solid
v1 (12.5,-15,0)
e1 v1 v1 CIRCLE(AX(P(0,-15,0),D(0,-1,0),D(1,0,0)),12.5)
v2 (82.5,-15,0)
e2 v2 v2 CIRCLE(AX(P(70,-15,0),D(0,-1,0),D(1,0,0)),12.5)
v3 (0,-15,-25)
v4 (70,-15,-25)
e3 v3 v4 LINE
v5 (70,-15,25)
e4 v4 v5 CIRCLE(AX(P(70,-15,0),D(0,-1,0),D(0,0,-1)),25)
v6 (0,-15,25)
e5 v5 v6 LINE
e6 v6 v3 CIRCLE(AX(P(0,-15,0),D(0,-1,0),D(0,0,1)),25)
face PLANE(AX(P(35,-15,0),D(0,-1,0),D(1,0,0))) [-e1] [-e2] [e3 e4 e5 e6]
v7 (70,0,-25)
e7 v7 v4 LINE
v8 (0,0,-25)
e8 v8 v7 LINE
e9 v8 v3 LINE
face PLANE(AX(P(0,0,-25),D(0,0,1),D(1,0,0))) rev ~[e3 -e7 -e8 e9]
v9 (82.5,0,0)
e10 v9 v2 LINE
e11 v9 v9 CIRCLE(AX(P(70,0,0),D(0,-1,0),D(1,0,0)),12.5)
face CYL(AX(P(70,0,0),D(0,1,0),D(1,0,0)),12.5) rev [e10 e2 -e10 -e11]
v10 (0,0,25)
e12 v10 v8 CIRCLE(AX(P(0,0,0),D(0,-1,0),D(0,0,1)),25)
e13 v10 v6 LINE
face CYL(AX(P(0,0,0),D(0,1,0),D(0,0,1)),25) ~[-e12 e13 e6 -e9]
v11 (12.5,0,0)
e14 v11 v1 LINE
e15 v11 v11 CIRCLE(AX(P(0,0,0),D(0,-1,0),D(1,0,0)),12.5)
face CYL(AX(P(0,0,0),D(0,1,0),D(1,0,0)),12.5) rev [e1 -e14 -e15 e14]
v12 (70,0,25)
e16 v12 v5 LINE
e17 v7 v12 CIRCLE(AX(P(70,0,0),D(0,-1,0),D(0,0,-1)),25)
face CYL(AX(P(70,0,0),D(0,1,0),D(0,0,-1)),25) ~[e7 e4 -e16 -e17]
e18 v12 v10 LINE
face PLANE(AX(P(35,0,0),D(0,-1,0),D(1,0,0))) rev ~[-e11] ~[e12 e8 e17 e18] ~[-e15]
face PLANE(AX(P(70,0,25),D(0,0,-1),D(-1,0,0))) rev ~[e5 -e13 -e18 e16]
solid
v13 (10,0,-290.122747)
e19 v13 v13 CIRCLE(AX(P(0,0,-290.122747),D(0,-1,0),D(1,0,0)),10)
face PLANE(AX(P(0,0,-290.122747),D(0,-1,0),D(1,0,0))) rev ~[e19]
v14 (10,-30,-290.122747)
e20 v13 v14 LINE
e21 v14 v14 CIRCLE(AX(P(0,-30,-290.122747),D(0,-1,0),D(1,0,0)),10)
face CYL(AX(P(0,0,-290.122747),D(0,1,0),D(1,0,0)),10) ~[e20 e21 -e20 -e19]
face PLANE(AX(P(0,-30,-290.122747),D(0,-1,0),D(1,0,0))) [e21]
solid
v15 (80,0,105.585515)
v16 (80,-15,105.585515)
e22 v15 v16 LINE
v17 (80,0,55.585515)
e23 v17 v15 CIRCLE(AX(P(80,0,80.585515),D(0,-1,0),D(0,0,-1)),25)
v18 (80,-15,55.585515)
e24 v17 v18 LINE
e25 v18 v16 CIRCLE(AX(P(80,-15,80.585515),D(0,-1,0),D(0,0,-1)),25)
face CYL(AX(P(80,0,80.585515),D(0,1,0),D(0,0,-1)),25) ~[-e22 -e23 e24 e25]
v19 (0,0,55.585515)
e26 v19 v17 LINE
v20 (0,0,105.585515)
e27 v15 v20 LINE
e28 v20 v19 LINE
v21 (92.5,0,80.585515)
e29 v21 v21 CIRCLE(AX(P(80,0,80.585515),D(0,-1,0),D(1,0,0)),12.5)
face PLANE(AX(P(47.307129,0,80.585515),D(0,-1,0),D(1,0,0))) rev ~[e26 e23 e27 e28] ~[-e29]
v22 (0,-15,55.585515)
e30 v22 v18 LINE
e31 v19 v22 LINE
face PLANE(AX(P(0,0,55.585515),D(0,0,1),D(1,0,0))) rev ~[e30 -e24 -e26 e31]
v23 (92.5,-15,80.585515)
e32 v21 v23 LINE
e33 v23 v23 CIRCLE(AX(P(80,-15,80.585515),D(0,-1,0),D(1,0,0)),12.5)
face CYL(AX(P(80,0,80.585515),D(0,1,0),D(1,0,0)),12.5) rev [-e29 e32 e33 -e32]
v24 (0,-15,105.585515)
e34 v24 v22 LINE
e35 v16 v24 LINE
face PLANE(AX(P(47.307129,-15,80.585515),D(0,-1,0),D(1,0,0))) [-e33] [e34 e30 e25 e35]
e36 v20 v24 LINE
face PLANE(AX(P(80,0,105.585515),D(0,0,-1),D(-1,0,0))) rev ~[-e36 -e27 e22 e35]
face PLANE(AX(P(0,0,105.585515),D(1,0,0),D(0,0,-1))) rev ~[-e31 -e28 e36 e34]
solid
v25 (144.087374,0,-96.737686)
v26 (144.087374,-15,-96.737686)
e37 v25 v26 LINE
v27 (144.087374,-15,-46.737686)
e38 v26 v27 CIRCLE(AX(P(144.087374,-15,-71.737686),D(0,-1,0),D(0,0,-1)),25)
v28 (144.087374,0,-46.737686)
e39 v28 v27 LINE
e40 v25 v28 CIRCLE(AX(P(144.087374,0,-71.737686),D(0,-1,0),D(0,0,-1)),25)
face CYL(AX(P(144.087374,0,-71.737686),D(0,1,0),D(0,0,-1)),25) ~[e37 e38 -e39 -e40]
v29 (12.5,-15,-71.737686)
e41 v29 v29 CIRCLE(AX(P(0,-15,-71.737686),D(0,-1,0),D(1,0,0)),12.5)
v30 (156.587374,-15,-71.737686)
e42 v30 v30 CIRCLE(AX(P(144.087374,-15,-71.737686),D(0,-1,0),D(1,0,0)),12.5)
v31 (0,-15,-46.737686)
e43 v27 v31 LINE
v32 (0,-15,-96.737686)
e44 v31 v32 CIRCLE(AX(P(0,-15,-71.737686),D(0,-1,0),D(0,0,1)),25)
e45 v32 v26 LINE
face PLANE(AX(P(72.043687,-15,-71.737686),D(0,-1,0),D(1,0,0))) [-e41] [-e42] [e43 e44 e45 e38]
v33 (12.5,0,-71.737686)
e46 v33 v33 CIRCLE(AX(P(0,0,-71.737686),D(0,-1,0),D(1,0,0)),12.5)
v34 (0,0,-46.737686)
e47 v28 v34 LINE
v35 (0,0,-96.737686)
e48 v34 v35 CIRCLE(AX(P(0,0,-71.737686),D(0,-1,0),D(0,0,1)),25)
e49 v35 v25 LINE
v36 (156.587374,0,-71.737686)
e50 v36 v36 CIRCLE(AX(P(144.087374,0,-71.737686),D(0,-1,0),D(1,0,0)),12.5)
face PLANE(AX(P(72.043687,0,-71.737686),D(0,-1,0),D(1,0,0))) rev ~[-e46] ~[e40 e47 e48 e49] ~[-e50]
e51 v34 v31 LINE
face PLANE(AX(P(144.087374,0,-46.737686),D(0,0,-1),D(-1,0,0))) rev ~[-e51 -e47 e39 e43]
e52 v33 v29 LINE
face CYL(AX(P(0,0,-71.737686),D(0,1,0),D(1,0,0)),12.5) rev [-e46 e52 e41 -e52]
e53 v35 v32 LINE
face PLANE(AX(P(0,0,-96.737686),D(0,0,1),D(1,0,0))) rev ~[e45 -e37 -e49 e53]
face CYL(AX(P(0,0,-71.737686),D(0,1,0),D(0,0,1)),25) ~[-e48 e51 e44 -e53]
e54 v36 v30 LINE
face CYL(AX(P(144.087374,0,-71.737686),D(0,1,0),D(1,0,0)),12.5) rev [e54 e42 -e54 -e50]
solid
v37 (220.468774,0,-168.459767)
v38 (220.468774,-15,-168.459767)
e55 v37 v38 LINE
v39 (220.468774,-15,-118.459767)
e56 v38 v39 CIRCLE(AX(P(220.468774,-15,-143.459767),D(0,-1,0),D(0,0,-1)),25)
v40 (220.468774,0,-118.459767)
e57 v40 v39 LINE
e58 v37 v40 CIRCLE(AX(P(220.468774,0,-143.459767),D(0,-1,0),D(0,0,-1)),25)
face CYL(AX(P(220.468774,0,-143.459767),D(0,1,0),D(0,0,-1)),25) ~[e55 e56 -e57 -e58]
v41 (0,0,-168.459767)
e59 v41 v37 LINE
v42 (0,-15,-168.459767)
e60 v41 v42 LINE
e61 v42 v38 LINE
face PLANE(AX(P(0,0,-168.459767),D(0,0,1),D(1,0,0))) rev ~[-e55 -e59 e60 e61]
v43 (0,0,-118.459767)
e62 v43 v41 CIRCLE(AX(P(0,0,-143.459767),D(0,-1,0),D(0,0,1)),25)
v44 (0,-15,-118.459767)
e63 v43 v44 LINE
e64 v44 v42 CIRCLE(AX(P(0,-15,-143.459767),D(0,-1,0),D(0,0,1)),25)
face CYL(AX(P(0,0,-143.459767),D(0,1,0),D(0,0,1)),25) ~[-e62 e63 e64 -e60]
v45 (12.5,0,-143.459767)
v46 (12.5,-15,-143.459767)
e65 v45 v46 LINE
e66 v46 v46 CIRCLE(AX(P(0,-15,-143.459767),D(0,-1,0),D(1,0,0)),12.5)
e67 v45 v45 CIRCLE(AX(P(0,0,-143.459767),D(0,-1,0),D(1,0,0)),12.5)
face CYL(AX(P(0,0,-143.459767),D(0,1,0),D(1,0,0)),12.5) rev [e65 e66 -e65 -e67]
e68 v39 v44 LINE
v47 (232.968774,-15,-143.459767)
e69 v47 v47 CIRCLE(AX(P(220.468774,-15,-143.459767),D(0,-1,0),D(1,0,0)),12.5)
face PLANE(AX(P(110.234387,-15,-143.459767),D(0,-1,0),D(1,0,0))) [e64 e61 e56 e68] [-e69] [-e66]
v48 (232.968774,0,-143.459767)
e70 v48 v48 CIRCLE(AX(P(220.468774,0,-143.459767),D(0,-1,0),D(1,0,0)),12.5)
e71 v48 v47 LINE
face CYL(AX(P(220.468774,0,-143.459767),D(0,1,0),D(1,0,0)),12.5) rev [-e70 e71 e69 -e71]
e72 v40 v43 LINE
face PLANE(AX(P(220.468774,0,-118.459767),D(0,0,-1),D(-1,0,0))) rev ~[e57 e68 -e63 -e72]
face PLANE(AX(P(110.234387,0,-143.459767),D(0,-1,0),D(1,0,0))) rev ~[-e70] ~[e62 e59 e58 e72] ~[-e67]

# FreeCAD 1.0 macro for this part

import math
import FreeCAD as App
import Part
import Sketcher

V = App.Vector

doc = App.newDocument("Part")
body = doc.addObject("PartDesign::Body", "Body")

# Sketch on XZ plane
sketch1 = body.newObject("Sketcher::SketchObject", "Sketch")
sketch1.AttachmentSupport = (doc.getObject("XZ_Plane"), [""])
sketch1.MapMode = "FlatFace"
sketch1.addGeometry([
    Part.LineSegment(V(70, 25, 0), V(0, 25, 0)),  # 0
    Part.ArcOfCircle(Part.Circle(V(0, 0, 0), V(0, 0, 1), 25), math.radians(90), math.radians(270)),  # 1
    Part.LineSegment(V(0, -25, 0), V(70, -25, 0)),  # 2
    Part.ArcOfCircle(Part.Circle(V(70, 0, 0), V(0, 0, 1), 25), math.radians(-90), math.radians(90)),  # 3
    Part.Circle(V(0, 0, 0), V(0, 0, 1), 12),  # 4
    Part.Circle(V(70, 0, 0), V(0, 0, 1), 12),  # 5
], False)
sketch1.addConstraint([
    Sketcher.Constraint("Tangent", 0, 2, 1, 1),
    Sketcher.Constraint("Tangent", 1, 2, 2, 1),
    Sketcher.Constraint("Tangent", 2, 2, 3, 1),
    Sketcher.Constraint("Tangent", 3, 2, 0, 1),
    Sketcher.Constraint("Horizontal", 0),
    Sketcher.Constraint("Horizontal", 2),
    Sketcher.Constraint("Coincident", 1, 3, -1, 1),
    Sketcher.Constraint("Coincident", 4, 3, -1, 1),
    Sketcher.Constraint("Coincident", 5, 3, 3, 3),
    Sketcher.Constraint("Equal", 4, 5),
    Sketcher.Constraint("Diameter", 4, 25.0),
    Sketcher.Constraint("Radius", 1, 25.0),
    Sketcher.Constraint("DistanceX", 0, 2, 0, 1, 70.0),
])
pad1 = body.newObject("PartDesign::Pad", "Pad")
pad1.Profile = sketch1
pad1.Length = 15
body2 = doc.addObject("PartDesign::Body", "Body001")

# Sketch on XZ plane
sketch2 = body2.newObject("Sketcher::SketchObject", "Sketch001")
sketch2.AttachmentSupport = (doc.getObject("XZ_Plane001"), [""])
sketch2.MapMode = "FlatFace"
sketch2.addGeometry([
    Part.LineSegment(V(80, 106, 0), V(0, 106, 0)),  # 0
    Part.LineSegment(V(0, 106, 0), V(0, 56, 0)),  # 1
    Part.LineSegment(V(0, 56, 0), V(80, 56, 0)),  # 2
    Part.ArcOfCircle(Part.Circle(V(80, 81, 0), V(0, 0, 1), 25), math.radians(-90), math.radians(90)),  # 3
    Part.Circle(V(80, 81, 0), V(0, 0, 1), 12),  # 4
], False)
sketch2.addConstraint([
    Sketcher.Constraint("Coincident", 0, 2, 1, 1),
    Sketcher.Constraint("Coincident", 1, 2, 2, 1),
    Sketcher.Constraint("Tangent", 2, 2, 3, 1),
    Sketcher.Constraint("Tangent", 3, 2, 0, 1),
    Sketcher.Constraint("Horizontal", 0),
    Sketcher.Constraint("Vertical", 1),
    Sketcher.Constraint("Horizontal", 2),
    Sketcher.Constraint("Coincident", 4, 3, 3, 3),
    Sketcher.Constraint("PointOnObject", 0, 2, -2),
    Sketcher.Constraint("Diameter", 4, 25.0),
    Sketcher.Constraint("Radius", 3, 25.0),
    Sketcher.Constraint("DistanceX", 0, 2, 0, 1, 80.0),
    Sketcher.Constraint("DistanceY", -1, 1, 3, 3, 80.585515),
])
pad2 = body2.newObject("PartDesign::Pad", "Pad001")
pad2.Profile = sketch2
pad2.Length = 15
body3 = doc.addObject("PartDesign::Body", "Body002")

# Sketch on XZ plane
sketch3 = body3.newObject("Sketcher::SketchObject", "Sketch002")
sketch3.AttachmentSupport = (doc.getObject("XZ_Plane002"), [""])
sketch3.MapMode = "FlatFace"
sketch3.addGeometry([
    Part.ArcOfCircle(Part.Circle(V(0, -72, 0), V(0, 0, 1), 25), math.radians(90), math.radians(270)),  # 0
    Part.LineSegment(V(0, -97, 0), V(144, -97, 0)),  # 1
    Part.ArcOfCircle(Part.Circle(V(144, -72, 0), V(0, 0, 1), 25), math.radians(-90), math.radians(90)),  # 2
    Part.LineSegment(V(144, -47, 0), V(0, -47, 0)),  # 3
    Part.Circle(V(0, -72, 0), V(0, 0, 1), 12),  # 4
    Part.Circle(V(144, -72, 0), V(0, 0, 1), 12),  # 5
], False)
sketch3.addConstraint([
    Sketcher.Constraint("Tangent", 0, 2, 1, 1),
    Sketcher.Constraint("Tangent", 1, 2, 2, 1),
    Sketcher.Constraint("Tangent", 2, 2, 3, 1),
    Sketcher.Constraint("Tangent", 3, 2, 0, 1),
    Sketcher.Constraint("Horizontal", 1),
    Sketcher.Constraint("Horizontal", 3),
    Sketcher.Constraint("Coincident", 4, 3, 0, 3),
    Sketcher.Constraint("Coincident", 5, 3, 2, 3),
    Sketcher.Constraint("Equal", 4, 5),
    Sketcher.Constraint("PointOnObject", 0, 3, -2),
    Sketcher.Constraint("Diameter", 4, 25.0),
    Sketcher.Constraint("Radius", 0, 25.0),
    Sketcher.Constraint("DistanceX", 1, 1, 1, 2, 144.087374),
    Sketcher.Constraint("DistanceY", 0, 3, -1, 1, 71.737686),
])
pad3 = body3.newObject("PartDesign::Pad", "Pad002")
pad3.Profile = sketch3
pad3.Length = 15
body4 = doc.addObject("PartDesign::Body", "Body003")

# Sketch on XZ plane
sketch4 = body4.newObject("Sketcher::SketchObject", "Sketch003")
sketch4.AttachmentSupport = (doc.getObject("XZ_Plane003"), [""])
sketch4.MapMode = "FlatFace"
sketch4.addGeometry([
    Part.ArcOfCircle(Part.Circle(V(0, -143, 0), V(0, 0, 1), 25), math.radians(90), math.radians(270)),  # 0
    Part.LineSegment(V(0, -168, 0), V(220, -168, 0)),  # 1
    Part.ArcOfCircle(Part.Circle(V(220, -143, 0), V(0, 0, 1), 25), math.radians(-90), math.radians(90)),  # 2
    Part.LineSegment(V(220, -118, 0), V(0, -118, 0)),  # 3
    Part.Circle(V(0, -143, 0), V(0, 0, 1), 12),  # 4
    Part.Circle(V(220, -143, 0), V(0, 0, 1), 12),  # 5
], False)
sketch4.addConstraint([
    Sketcher.Constraint("Tangent", 0, 2, 1, 1),
    Sketcher.Constraint("Tangent", 1, 2, 2, 1),
    Sketcher.Constraint("Tangent", 2, 2, 3, 1),
    Sketcher.Constraint("Tangent", 3, 2, 0, 1),
    Sketcher.Constraint("Horizontal", 1),
    Sketcher.Constraint("Horizontal", 3),
    Sketcher.Constraint("Coincident", 4, 3, 0, 3),
    Sketcher.Constraint("Coincident", 5, 3, 2, 3),
    Sketcher.Constraint("Equal", 4, 5),
    Sketcher.Constraint("PointOnObject", 0, 3, -2),
    Sketcher.Constraint("Diameter", 4, 25.0),
    Sketcher.Constraint("Radius", 0, 25.0),
    Sketcher.Constraint("DistanceX", 1, 1, 1, 2, 220.468774),
    Sketcher.Constraint("DistanceY", 0, 3, -1, 1, 143.459767),
])
pad4 = body4.newObject("PartDesign::Pad", "Pad003")
pad4.Profile = sketch4
pad4.Length = 15
body5 = doc.addObject("PartDesign::Body", "Body004")

# Sketch on XZ plane
sketch5 = body5.newObject("Sketcher::SketchObject", "Sketch004")
sketch5.AttachmentSupport = (doc.getObject("XZ_Plane004"), [""])
sketch5.MapMode = "FlatFace"
sketch5.addGeometry(Part.Circle(V(0, -290, 0), V(0, 0, 1), 10), False)
sketch5.addConstraint([
    Sketcher.Constraint("PointOnObject", 0, 3, -2),
    Sketcher.Constraint("Diameter", 0, 20.0),
    Sketcher.Constraint("DistanceY", 0, 3, -1, 1, 290.122747),
])
pad5 = body5.newObject("PartDesign::Pad", "Pad004")
pad5.Profile = sketch5
pad5.Length = 30

doc.recompute()
